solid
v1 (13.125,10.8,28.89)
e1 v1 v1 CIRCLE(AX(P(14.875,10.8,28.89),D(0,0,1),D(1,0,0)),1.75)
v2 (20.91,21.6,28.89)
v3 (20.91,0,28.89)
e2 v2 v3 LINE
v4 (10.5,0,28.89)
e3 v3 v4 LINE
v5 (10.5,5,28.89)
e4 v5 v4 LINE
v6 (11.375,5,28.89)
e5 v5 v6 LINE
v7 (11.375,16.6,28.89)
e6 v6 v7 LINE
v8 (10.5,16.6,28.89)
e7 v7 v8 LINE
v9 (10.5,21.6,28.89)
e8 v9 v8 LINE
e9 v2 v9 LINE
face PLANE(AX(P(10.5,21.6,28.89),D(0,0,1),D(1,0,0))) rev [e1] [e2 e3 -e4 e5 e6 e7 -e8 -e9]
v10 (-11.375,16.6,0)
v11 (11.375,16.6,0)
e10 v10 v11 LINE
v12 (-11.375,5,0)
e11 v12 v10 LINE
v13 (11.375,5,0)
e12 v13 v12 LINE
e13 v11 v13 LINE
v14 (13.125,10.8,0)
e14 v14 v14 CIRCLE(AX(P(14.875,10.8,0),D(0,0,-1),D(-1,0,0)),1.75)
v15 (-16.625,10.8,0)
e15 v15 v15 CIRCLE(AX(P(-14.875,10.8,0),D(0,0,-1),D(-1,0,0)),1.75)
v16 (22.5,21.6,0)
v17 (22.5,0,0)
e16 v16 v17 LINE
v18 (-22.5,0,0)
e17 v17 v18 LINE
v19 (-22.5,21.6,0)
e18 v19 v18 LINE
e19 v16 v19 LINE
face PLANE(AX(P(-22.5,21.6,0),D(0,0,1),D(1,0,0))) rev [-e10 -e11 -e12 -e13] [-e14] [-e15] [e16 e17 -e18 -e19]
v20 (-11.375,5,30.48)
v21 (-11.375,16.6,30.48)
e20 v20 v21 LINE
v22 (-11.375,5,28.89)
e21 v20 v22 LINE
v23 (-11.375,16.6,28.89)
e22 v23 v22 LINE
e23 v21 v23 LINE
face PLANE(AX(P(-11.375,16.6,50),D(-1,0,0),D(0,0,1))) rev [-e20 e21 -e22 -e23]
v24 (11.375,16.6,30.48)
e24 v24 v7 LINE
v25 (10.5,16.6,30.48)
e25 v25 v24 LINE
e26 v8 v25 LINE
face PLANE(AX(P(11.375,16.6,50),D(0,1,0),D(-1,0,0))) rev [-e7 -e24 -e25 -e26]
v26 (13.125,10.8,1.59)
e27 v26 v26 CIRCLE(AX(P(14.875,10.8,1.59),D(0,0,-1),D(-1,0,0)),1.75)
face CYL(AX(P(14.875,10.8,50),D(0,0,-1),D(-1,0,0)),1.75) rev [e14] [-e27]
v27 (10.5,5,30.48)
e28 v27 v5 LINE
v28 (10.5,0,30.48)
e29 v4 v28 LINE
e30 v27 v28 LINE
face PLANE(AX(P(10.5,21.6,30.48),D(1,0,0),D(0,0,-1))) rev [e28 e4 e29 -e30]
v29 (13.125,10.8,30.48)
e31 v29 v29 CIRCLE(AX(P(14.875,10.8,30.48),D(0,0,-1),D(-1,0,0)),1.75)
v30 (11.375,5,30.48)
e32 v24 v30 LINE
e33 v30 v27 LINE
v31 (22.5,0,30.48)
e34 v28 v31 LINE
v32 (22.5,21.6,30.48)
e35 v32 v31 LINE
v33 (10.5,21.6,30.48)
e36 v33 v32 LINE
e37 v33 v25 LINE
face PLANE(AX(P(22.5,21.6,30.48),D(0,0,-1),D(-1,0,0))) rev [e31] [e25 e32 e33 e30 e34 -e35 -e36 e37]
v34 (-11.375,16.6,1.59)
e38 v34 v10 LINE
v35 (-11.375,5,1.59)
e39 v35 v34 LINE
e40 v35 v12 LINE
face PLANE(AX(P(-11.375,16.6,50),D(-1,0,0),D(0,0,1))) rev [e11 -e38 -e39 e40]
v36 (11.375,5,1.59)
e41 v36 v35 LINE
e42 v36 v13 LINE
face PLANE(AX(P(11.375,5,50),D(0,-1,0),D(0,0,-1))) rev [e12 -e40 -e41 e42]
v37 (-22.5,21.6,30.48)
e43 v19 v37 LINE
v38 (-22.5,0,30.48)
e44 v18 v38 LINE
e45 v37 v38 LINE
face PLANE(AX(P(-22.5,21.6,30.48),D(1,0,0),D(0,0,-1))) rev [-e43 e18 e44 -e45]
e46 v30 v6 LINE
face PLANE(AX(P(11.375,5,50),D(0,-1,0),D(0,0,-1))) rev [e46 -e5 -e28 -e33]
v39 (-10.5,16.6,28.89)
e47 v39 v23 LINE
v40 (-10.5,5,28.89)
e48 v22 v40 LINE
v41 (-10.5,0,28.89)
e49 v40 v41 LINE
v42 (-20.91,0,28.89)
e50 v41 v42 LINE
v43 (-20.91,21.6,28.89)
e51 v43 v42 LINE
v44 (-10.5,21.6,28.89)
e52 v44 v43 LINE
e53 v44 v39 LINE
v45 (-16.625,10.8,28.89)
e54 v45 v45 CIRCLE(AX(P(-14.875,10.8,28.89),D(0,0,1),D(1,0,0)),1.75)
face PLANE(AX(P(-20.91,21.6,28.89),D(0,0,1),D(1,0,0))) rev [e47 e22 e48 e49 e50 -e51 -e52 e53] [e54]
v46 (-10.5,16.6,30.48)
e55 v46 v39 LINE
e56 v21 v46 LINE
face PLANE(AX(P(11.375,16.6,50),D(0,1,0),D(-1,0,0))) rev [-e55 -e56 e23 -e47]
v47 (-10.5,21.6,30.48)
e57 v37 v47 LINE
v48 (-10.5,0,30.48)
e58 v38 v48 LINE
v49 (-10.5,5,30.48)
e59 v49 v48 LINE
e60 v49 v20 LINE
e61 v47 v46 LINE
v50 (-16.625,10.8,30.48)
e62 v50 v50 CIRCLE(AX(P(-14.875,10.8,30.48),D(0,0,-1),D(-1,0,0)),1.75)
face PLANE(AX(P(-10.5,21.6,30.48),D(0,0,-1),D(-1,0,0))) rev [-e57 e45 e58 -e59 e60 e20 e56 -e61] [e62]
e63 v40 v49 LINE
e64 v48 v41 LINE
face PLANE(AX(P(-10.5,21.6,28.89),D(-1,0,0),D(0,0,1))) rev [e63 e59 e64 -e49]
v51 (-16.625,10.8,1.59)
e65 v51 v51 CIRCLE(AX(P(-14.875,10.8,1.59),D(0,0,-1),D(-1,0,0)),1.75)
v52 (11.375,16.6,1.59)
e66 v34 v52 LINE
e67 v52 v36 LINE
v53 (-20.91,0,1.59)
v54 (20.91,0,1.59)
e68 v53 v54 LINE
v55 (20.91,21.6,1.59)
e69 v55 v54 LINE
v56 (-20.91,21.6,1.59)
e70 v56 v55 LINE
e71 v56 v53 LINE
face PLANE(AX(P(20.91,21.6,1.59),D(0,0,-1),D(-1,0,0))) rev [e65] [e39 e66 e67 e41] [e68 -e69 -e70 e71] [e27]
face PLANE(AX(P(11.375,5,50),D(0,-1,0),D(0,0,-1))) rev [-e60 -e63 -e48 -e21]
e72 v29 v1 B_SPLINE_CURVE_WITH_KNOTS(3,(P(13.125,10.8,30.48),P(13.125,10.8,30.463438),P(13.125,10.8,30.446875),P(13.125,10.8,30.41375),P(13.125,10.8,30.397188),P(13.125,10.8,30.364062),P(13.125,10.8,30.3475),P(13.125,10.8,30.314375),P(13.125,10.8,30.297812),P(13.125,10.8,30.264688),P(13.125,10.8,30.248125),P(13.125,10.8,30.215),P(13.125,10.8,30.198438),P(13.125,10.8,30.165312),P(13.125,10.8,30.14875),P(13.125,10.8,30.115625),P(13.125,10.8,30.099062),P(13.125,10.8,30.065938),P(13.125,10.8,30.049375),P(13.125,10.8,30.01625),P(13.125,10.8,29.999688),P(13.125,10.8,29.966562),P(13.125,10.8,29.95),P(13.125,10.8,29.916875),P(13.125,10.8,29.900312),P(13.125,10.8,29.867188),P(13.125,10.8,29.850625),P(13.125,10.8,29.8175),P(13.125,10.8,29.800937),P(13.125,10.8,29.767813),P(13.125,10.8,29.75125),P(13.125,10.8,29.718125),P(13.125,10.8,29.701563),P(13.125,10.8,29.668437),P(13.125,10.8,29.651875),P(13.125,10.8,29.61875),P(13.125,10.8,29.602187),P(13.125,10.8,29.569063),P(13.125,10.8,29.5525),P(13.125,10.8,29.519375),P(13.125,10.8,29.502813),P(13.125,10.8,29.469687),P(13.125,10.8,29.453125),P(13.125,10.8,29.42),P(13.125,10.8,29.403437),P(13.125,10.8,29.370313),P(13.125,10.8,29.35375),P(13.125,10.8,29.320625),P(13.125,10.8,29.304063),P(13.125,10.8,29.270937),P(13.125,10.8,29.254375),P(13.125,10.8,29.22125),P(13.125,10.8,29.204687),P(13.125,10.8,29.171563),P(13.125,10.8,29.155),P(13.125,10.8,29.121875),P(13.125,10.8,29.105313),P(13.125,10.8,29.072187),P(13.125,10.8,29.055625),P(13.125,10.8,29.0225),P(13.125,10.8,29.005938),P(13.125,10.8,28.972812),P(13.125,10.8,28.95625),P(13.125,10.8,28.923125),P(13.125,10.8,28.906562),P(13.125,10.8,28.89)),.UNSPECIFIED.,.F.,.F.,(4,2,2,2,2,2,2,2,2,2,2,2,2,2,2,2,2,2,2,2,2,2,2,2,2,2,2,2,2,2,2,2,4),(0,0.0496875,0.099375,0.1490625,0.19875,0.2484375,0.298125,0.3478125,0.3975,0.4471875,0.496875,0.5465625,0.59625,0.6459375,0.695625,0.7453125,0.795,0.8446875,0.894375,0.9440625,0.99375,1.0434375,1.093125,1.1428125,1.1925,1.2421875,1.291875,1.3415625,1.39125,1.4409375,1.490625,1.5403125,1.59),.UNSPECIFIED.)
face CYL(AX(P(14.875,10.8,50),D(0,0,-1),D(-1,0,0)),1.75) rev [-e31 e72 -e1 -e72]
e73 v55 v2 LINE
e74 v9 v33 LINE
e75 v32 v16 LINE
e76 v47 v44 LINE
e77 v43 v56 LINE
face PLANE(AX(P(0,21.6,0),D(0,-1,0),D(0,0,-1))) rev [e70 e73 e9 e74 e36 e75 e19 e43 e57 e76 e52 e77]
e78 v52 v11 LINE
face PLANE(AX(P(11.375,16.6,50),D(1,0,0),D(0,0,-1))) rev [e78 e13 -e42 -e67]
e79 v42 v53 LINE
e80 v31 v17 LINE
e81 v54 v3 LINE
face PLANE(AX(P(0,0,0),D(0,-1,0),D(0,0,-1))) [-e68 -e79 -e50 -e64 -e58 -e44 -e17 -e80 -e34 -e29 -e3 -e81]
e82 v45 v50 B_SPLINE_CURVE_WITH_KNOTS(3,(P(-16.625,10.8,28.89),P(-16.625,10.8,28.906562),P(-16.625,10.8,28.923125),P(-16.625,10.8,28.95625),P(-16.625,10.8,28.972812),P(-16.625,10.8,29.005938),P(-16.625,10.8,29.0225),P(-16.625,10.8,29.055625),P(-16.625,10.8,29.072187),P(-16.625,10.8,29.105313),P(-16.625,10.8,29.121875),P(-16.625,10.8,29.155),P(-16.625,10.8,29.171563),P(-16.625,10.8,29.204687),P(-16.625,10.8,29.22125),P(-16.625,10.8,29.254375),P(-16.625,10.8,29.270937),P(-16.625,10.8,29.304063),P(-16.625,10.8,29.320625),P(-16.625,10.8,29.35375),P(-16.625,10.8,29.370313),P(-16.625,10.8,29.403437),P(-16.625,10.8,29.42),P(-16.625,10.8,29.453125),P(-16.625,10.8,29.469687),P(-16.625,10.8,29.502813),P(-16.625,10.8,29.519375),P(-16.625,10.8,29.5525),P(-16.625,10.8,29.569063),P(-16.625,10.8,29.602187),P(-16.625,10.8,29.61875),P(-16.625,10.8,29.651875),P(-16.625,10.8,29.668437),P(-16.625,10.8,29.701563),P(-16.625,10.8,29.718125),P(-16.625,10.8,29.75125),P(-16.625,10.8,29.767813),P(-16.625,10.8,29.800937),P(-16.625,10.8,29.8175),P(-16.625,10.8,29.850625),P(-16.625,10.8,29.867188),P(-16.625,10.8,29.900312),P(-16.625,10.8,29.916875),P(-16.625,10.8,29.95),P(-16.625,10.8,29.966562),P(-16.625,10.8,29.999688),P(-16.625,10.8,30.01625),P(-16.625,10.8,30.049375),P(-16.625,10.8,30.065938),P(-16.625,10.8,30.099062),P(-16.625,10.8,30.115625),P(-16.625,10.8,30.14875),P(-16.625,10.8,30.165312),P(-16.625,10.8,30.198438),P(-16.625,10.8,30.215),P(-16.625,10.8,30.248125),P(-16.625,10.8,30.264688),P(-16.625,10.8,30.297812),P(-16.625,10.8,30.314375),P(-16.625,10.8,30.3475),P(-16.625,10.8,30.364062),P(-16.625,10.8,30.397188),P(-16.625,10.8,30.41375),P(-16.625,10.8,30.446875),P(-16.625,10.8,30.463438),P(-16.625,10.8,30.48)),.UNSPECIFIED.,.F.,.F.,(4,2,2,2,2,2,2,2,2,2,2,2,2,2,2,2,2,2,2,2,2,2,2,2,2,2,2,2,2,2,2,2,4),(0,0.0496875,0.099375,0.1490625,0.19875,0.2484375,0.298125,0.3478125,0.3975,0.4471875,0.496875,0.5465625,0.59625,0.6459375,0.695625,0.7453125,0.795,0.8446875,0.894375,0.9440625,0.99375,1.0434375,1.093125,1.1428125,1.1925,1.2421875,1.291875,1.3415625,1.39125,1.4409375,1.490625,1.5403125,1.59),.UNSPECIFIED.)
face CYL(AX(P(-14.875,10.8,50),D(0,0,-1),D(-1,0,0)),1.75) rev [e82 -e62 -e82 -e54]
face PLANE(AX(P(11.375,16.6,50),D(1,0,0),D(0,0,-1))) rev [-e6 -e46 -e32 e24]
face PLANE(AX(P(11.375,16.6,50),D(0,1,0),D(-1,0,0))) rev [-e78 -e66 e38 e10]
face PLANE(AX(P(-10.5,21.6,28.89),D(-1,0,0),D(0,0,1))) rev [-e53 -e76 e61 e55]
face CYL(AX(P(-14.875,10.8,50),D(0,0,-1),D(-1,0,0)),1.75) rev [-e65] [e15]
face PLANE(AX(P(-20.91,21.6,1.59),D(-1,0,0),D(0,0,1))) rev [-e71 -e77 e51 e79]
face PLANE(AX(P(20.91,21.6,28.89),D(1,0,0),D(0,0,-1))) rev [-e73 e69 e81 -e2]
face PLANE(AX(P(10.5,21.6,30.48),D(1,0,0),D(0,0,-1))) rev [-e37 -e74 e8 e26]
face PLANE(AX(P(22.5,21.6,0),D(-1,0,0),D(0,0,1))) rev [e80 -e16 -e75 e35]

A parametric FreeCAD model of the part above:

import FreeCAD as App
import Part
import Sketcher

doc = App.newDocument("Part")
body = doc.addObject("PartDesign::Body", "Body")

# Sketch on XZ plane
sketch1 = body.newObject("Sketcher::SketchObject", "Sketch")
sketch1.AttachmentSupport = (doc.getObject("XZ_Plane"), [""])
sketch1.MapMode = "FlatFace"
sketch1.addGeometry([
    Part.LineSegment(App.Vector(22.5, 0, 0), App.Vector(-22.5, 0, 0)),  # 0
    Part.LineSegment(App.Vector(-22.5, 0, 0), App.Vector(-22.5, 30.5, 0)),  # 1
    Part.LineSegment(App.Vector(-22.5, 30.5, 0), App.Vector(-10.5, 30.5, 0)),  # 2
    Part.LineSegment(App.Vector(-10.5, 30.5, 0), App.Vector(-10.5, 28.9, 0)),  # 3
    Part.LineSegment(App.Vector(-10.5, 28.9, 0), App.Vector(-20.9, 28.9, 0)),  # 4
    Part.LineSegment(App.Vector(-20.9, 28.9, 0), App.Vector(-20.9, 1.6, 0)),  # 5
    Part.LineSegment(App.Vector(-20.9, 1.6, 0), App.Vector(20.9, 1.6, 0)),  # 6
    Part.LineSegment(App.Vector(20.9, 1.6, 0), App.Vector(20.9, 28.9, 0)),  # 7
    Part.LineSegment(App.Vector(20.9, 28.9, 0), App.Vector(10.5, 28.9, 0)),  # 8
    Part.LineSegment(App.Vector(10.5, 28.9, 0), App.Vector(10.5, 30.5, 0)),  # 9
    Part.LineSegment(App.Vector(10.5, 30.5, 0), App.Vector(22.5, 30.5, 0)),  # 10
    Part.LineSegment(App.Vector(22.5, 30.5, 0), App.Vector(22.5, 0, 0)),  # 11
], False)
sketch1.addConstraint([
    Sketcher.Constraint("Coincident", 0, 2, 1, 1),
    Sketcher.Constraint("Coincident", 1, 2, 2, 1),
    Sketcher.Constraint("Coincident", 2, 2, 3, 1),
    Sketcher.Constraint("Coincident", 3, 2, 4, 1),
    Sketcher.Constraint("Coincident", 4, 2, 5, 1),
    Sketcher.Constraint("Coincident", 5, 2, 6, 1),
    Sketcher.Constraint("Coincident", 6, 2, 7, 1),
    Sketcher.Constraint("Coincident", 7, 2, 8, 1),
    Sketcher.Constraint("Coincident", 8, 2, 9, 1),
    Sketcher.Constraint("Coincident", 9, 2, 10, 1),
    Sketcher.Constraint("Coincident", 10, 2, 11, 1),
    Sketcher.Constraint("Coincident", 11, 2, 0, 1),
    Sketcher.Constraint("Horizontal", 0),
    Sketcher.Constraint("Vertical", 1),
    Sketcher.Constraint("Horizontal", 2),
    Sketcher.Constraint("Vertical", 3),
    Sketcher.Constraint("Horizontal", 4),
    Sketcher.Constraint("Vertical", 5),
    Sketcher.Constraint("Horizontal", 6),
    Sketcher.Constraint("Vertical", 7),
    Sketcher.Constraint("Horizontal", 8),
    Sketcher.Constraint("Vertical", 9),
    Sketcher.Constraint("Horizontal", 10),
    Sketcher.Constraint("Vertical", 11),
    Sketcher.Constraint("Symmetric", 0, 2, 11, 2, -1, 1),
    Sketcher.Constraint("Symmetric", 4, 2, 7, 2, -2),
    Sketcher.Constraint("Symmetric", 2, 2, 9, 2, -2),
    Sketcher.Constraint("DistanceX", 0, 2, 0, 1, 45.0),
    Sketcher.Constraint("DistanceX", 2, 1, 2, 2, 12.0),
    Sketcher.Constraint("DistanceY", 5, 2, 5, 1, 27.3),
    Sketcher.Constraint("DistanceX", 4, 2, 4, 1, 10.41),
    Sketcher.Constraint("DistanceY", 1, 1, 1, 2, 30.48),
    Sketcher.Constraint("DistanceY", 3, 2, 3, 1, 1.59),
])
pad1 = body.newObject("PartDesign::Pad", "Pad")
pad1.Profile = sketch1
pad1.Length = 21.6
pad1.Reversed = True

# Sketch on XY plane
sketch2 = body.newObject("Sketcher::SketchObject", "Sketch001")
sketch2.AttachmentSupport = (doc.getObject("XY_Plane"), [""])
sketch2.MapMode = "FlatFace"
sketch2.addGeometry([
    Part.Circle(App.Vector(14.9, 10.8, 0), App.Vector(0, 0, 1), 1.8),  # 0
    Part.Circle(App.Vector(-14.9, 10.8, 0), App.Vector(0, 0, 1), 1.8),  # 1
    Part.LineSegment(App.Vector(11.4, 16.6, 0), App.Vector(11.4, 5, 0)),  # 2
    Part.LineSegment(App.Vector(11.4, 5, 0), App.Vector(-11.4, 5, 0)),  # 3
    Part.LineSegment(App.Vector(-11.4, 5, 0), App.Vector(-11.4, 16.6, 0)),  # 4
    Part.LineSegment(App.Vector(-11.4, 16.6, 0), App.Vector(11.4, 16.6, 0)),  # 5
], False)
sketch2.addConstraint([
    Sketcher.Constraint("Coincident", 2, 2, 3, 1),
    Sketcher.Constraint("Coincident", 3, 2, 4, 1),
    Sketcher.Constraint("Coincident", 4, 2, 5, 1),
    Sketcher.Constraint("Coincident", 5, 2, 2, 1),
    Sketcher.Constraint("Vertical", 2),
    Sketcher.Constraint("Horizontal", 3),
    Sketcher.Constraint("Vertical", 4),
    Sketcher.Constraint("Horizontal", 5),
    Sketcher.Constraint("Equal", 0, 1),
    Sketcher.Constraint("Symmetric", 0, 3, 1, 3, -2),
    Sketcher.Constraint("Diameter", 0, 3.5),
    Sketcher.Constraint("DistanceY", 2, 2, 2, 1, 11.6),
    Sketcher.Constraint("DistanceY", -1, 1, 2, 2, 5.0),
    Sketcher.Constraint("DistanceX", 3, 2, 3, 1, 22.75),
    Sketcher.Constraint("DistanceY", -1, 1, 0, 3, 10.8),
    Sketcher.Constraint("DistanceX", 2, 2, 0, 3, 3.5),
    Sketcher.Constraint("DistanceX", 1, 3, 3, 2, 3.5),
])
pocket1 = body.newObject("PartDesign::Pocket", "Pocket")
pocket1.Profile = sketch2
pocket1.Length = 50
pocket1.Reversed = True

doc.recompute()
